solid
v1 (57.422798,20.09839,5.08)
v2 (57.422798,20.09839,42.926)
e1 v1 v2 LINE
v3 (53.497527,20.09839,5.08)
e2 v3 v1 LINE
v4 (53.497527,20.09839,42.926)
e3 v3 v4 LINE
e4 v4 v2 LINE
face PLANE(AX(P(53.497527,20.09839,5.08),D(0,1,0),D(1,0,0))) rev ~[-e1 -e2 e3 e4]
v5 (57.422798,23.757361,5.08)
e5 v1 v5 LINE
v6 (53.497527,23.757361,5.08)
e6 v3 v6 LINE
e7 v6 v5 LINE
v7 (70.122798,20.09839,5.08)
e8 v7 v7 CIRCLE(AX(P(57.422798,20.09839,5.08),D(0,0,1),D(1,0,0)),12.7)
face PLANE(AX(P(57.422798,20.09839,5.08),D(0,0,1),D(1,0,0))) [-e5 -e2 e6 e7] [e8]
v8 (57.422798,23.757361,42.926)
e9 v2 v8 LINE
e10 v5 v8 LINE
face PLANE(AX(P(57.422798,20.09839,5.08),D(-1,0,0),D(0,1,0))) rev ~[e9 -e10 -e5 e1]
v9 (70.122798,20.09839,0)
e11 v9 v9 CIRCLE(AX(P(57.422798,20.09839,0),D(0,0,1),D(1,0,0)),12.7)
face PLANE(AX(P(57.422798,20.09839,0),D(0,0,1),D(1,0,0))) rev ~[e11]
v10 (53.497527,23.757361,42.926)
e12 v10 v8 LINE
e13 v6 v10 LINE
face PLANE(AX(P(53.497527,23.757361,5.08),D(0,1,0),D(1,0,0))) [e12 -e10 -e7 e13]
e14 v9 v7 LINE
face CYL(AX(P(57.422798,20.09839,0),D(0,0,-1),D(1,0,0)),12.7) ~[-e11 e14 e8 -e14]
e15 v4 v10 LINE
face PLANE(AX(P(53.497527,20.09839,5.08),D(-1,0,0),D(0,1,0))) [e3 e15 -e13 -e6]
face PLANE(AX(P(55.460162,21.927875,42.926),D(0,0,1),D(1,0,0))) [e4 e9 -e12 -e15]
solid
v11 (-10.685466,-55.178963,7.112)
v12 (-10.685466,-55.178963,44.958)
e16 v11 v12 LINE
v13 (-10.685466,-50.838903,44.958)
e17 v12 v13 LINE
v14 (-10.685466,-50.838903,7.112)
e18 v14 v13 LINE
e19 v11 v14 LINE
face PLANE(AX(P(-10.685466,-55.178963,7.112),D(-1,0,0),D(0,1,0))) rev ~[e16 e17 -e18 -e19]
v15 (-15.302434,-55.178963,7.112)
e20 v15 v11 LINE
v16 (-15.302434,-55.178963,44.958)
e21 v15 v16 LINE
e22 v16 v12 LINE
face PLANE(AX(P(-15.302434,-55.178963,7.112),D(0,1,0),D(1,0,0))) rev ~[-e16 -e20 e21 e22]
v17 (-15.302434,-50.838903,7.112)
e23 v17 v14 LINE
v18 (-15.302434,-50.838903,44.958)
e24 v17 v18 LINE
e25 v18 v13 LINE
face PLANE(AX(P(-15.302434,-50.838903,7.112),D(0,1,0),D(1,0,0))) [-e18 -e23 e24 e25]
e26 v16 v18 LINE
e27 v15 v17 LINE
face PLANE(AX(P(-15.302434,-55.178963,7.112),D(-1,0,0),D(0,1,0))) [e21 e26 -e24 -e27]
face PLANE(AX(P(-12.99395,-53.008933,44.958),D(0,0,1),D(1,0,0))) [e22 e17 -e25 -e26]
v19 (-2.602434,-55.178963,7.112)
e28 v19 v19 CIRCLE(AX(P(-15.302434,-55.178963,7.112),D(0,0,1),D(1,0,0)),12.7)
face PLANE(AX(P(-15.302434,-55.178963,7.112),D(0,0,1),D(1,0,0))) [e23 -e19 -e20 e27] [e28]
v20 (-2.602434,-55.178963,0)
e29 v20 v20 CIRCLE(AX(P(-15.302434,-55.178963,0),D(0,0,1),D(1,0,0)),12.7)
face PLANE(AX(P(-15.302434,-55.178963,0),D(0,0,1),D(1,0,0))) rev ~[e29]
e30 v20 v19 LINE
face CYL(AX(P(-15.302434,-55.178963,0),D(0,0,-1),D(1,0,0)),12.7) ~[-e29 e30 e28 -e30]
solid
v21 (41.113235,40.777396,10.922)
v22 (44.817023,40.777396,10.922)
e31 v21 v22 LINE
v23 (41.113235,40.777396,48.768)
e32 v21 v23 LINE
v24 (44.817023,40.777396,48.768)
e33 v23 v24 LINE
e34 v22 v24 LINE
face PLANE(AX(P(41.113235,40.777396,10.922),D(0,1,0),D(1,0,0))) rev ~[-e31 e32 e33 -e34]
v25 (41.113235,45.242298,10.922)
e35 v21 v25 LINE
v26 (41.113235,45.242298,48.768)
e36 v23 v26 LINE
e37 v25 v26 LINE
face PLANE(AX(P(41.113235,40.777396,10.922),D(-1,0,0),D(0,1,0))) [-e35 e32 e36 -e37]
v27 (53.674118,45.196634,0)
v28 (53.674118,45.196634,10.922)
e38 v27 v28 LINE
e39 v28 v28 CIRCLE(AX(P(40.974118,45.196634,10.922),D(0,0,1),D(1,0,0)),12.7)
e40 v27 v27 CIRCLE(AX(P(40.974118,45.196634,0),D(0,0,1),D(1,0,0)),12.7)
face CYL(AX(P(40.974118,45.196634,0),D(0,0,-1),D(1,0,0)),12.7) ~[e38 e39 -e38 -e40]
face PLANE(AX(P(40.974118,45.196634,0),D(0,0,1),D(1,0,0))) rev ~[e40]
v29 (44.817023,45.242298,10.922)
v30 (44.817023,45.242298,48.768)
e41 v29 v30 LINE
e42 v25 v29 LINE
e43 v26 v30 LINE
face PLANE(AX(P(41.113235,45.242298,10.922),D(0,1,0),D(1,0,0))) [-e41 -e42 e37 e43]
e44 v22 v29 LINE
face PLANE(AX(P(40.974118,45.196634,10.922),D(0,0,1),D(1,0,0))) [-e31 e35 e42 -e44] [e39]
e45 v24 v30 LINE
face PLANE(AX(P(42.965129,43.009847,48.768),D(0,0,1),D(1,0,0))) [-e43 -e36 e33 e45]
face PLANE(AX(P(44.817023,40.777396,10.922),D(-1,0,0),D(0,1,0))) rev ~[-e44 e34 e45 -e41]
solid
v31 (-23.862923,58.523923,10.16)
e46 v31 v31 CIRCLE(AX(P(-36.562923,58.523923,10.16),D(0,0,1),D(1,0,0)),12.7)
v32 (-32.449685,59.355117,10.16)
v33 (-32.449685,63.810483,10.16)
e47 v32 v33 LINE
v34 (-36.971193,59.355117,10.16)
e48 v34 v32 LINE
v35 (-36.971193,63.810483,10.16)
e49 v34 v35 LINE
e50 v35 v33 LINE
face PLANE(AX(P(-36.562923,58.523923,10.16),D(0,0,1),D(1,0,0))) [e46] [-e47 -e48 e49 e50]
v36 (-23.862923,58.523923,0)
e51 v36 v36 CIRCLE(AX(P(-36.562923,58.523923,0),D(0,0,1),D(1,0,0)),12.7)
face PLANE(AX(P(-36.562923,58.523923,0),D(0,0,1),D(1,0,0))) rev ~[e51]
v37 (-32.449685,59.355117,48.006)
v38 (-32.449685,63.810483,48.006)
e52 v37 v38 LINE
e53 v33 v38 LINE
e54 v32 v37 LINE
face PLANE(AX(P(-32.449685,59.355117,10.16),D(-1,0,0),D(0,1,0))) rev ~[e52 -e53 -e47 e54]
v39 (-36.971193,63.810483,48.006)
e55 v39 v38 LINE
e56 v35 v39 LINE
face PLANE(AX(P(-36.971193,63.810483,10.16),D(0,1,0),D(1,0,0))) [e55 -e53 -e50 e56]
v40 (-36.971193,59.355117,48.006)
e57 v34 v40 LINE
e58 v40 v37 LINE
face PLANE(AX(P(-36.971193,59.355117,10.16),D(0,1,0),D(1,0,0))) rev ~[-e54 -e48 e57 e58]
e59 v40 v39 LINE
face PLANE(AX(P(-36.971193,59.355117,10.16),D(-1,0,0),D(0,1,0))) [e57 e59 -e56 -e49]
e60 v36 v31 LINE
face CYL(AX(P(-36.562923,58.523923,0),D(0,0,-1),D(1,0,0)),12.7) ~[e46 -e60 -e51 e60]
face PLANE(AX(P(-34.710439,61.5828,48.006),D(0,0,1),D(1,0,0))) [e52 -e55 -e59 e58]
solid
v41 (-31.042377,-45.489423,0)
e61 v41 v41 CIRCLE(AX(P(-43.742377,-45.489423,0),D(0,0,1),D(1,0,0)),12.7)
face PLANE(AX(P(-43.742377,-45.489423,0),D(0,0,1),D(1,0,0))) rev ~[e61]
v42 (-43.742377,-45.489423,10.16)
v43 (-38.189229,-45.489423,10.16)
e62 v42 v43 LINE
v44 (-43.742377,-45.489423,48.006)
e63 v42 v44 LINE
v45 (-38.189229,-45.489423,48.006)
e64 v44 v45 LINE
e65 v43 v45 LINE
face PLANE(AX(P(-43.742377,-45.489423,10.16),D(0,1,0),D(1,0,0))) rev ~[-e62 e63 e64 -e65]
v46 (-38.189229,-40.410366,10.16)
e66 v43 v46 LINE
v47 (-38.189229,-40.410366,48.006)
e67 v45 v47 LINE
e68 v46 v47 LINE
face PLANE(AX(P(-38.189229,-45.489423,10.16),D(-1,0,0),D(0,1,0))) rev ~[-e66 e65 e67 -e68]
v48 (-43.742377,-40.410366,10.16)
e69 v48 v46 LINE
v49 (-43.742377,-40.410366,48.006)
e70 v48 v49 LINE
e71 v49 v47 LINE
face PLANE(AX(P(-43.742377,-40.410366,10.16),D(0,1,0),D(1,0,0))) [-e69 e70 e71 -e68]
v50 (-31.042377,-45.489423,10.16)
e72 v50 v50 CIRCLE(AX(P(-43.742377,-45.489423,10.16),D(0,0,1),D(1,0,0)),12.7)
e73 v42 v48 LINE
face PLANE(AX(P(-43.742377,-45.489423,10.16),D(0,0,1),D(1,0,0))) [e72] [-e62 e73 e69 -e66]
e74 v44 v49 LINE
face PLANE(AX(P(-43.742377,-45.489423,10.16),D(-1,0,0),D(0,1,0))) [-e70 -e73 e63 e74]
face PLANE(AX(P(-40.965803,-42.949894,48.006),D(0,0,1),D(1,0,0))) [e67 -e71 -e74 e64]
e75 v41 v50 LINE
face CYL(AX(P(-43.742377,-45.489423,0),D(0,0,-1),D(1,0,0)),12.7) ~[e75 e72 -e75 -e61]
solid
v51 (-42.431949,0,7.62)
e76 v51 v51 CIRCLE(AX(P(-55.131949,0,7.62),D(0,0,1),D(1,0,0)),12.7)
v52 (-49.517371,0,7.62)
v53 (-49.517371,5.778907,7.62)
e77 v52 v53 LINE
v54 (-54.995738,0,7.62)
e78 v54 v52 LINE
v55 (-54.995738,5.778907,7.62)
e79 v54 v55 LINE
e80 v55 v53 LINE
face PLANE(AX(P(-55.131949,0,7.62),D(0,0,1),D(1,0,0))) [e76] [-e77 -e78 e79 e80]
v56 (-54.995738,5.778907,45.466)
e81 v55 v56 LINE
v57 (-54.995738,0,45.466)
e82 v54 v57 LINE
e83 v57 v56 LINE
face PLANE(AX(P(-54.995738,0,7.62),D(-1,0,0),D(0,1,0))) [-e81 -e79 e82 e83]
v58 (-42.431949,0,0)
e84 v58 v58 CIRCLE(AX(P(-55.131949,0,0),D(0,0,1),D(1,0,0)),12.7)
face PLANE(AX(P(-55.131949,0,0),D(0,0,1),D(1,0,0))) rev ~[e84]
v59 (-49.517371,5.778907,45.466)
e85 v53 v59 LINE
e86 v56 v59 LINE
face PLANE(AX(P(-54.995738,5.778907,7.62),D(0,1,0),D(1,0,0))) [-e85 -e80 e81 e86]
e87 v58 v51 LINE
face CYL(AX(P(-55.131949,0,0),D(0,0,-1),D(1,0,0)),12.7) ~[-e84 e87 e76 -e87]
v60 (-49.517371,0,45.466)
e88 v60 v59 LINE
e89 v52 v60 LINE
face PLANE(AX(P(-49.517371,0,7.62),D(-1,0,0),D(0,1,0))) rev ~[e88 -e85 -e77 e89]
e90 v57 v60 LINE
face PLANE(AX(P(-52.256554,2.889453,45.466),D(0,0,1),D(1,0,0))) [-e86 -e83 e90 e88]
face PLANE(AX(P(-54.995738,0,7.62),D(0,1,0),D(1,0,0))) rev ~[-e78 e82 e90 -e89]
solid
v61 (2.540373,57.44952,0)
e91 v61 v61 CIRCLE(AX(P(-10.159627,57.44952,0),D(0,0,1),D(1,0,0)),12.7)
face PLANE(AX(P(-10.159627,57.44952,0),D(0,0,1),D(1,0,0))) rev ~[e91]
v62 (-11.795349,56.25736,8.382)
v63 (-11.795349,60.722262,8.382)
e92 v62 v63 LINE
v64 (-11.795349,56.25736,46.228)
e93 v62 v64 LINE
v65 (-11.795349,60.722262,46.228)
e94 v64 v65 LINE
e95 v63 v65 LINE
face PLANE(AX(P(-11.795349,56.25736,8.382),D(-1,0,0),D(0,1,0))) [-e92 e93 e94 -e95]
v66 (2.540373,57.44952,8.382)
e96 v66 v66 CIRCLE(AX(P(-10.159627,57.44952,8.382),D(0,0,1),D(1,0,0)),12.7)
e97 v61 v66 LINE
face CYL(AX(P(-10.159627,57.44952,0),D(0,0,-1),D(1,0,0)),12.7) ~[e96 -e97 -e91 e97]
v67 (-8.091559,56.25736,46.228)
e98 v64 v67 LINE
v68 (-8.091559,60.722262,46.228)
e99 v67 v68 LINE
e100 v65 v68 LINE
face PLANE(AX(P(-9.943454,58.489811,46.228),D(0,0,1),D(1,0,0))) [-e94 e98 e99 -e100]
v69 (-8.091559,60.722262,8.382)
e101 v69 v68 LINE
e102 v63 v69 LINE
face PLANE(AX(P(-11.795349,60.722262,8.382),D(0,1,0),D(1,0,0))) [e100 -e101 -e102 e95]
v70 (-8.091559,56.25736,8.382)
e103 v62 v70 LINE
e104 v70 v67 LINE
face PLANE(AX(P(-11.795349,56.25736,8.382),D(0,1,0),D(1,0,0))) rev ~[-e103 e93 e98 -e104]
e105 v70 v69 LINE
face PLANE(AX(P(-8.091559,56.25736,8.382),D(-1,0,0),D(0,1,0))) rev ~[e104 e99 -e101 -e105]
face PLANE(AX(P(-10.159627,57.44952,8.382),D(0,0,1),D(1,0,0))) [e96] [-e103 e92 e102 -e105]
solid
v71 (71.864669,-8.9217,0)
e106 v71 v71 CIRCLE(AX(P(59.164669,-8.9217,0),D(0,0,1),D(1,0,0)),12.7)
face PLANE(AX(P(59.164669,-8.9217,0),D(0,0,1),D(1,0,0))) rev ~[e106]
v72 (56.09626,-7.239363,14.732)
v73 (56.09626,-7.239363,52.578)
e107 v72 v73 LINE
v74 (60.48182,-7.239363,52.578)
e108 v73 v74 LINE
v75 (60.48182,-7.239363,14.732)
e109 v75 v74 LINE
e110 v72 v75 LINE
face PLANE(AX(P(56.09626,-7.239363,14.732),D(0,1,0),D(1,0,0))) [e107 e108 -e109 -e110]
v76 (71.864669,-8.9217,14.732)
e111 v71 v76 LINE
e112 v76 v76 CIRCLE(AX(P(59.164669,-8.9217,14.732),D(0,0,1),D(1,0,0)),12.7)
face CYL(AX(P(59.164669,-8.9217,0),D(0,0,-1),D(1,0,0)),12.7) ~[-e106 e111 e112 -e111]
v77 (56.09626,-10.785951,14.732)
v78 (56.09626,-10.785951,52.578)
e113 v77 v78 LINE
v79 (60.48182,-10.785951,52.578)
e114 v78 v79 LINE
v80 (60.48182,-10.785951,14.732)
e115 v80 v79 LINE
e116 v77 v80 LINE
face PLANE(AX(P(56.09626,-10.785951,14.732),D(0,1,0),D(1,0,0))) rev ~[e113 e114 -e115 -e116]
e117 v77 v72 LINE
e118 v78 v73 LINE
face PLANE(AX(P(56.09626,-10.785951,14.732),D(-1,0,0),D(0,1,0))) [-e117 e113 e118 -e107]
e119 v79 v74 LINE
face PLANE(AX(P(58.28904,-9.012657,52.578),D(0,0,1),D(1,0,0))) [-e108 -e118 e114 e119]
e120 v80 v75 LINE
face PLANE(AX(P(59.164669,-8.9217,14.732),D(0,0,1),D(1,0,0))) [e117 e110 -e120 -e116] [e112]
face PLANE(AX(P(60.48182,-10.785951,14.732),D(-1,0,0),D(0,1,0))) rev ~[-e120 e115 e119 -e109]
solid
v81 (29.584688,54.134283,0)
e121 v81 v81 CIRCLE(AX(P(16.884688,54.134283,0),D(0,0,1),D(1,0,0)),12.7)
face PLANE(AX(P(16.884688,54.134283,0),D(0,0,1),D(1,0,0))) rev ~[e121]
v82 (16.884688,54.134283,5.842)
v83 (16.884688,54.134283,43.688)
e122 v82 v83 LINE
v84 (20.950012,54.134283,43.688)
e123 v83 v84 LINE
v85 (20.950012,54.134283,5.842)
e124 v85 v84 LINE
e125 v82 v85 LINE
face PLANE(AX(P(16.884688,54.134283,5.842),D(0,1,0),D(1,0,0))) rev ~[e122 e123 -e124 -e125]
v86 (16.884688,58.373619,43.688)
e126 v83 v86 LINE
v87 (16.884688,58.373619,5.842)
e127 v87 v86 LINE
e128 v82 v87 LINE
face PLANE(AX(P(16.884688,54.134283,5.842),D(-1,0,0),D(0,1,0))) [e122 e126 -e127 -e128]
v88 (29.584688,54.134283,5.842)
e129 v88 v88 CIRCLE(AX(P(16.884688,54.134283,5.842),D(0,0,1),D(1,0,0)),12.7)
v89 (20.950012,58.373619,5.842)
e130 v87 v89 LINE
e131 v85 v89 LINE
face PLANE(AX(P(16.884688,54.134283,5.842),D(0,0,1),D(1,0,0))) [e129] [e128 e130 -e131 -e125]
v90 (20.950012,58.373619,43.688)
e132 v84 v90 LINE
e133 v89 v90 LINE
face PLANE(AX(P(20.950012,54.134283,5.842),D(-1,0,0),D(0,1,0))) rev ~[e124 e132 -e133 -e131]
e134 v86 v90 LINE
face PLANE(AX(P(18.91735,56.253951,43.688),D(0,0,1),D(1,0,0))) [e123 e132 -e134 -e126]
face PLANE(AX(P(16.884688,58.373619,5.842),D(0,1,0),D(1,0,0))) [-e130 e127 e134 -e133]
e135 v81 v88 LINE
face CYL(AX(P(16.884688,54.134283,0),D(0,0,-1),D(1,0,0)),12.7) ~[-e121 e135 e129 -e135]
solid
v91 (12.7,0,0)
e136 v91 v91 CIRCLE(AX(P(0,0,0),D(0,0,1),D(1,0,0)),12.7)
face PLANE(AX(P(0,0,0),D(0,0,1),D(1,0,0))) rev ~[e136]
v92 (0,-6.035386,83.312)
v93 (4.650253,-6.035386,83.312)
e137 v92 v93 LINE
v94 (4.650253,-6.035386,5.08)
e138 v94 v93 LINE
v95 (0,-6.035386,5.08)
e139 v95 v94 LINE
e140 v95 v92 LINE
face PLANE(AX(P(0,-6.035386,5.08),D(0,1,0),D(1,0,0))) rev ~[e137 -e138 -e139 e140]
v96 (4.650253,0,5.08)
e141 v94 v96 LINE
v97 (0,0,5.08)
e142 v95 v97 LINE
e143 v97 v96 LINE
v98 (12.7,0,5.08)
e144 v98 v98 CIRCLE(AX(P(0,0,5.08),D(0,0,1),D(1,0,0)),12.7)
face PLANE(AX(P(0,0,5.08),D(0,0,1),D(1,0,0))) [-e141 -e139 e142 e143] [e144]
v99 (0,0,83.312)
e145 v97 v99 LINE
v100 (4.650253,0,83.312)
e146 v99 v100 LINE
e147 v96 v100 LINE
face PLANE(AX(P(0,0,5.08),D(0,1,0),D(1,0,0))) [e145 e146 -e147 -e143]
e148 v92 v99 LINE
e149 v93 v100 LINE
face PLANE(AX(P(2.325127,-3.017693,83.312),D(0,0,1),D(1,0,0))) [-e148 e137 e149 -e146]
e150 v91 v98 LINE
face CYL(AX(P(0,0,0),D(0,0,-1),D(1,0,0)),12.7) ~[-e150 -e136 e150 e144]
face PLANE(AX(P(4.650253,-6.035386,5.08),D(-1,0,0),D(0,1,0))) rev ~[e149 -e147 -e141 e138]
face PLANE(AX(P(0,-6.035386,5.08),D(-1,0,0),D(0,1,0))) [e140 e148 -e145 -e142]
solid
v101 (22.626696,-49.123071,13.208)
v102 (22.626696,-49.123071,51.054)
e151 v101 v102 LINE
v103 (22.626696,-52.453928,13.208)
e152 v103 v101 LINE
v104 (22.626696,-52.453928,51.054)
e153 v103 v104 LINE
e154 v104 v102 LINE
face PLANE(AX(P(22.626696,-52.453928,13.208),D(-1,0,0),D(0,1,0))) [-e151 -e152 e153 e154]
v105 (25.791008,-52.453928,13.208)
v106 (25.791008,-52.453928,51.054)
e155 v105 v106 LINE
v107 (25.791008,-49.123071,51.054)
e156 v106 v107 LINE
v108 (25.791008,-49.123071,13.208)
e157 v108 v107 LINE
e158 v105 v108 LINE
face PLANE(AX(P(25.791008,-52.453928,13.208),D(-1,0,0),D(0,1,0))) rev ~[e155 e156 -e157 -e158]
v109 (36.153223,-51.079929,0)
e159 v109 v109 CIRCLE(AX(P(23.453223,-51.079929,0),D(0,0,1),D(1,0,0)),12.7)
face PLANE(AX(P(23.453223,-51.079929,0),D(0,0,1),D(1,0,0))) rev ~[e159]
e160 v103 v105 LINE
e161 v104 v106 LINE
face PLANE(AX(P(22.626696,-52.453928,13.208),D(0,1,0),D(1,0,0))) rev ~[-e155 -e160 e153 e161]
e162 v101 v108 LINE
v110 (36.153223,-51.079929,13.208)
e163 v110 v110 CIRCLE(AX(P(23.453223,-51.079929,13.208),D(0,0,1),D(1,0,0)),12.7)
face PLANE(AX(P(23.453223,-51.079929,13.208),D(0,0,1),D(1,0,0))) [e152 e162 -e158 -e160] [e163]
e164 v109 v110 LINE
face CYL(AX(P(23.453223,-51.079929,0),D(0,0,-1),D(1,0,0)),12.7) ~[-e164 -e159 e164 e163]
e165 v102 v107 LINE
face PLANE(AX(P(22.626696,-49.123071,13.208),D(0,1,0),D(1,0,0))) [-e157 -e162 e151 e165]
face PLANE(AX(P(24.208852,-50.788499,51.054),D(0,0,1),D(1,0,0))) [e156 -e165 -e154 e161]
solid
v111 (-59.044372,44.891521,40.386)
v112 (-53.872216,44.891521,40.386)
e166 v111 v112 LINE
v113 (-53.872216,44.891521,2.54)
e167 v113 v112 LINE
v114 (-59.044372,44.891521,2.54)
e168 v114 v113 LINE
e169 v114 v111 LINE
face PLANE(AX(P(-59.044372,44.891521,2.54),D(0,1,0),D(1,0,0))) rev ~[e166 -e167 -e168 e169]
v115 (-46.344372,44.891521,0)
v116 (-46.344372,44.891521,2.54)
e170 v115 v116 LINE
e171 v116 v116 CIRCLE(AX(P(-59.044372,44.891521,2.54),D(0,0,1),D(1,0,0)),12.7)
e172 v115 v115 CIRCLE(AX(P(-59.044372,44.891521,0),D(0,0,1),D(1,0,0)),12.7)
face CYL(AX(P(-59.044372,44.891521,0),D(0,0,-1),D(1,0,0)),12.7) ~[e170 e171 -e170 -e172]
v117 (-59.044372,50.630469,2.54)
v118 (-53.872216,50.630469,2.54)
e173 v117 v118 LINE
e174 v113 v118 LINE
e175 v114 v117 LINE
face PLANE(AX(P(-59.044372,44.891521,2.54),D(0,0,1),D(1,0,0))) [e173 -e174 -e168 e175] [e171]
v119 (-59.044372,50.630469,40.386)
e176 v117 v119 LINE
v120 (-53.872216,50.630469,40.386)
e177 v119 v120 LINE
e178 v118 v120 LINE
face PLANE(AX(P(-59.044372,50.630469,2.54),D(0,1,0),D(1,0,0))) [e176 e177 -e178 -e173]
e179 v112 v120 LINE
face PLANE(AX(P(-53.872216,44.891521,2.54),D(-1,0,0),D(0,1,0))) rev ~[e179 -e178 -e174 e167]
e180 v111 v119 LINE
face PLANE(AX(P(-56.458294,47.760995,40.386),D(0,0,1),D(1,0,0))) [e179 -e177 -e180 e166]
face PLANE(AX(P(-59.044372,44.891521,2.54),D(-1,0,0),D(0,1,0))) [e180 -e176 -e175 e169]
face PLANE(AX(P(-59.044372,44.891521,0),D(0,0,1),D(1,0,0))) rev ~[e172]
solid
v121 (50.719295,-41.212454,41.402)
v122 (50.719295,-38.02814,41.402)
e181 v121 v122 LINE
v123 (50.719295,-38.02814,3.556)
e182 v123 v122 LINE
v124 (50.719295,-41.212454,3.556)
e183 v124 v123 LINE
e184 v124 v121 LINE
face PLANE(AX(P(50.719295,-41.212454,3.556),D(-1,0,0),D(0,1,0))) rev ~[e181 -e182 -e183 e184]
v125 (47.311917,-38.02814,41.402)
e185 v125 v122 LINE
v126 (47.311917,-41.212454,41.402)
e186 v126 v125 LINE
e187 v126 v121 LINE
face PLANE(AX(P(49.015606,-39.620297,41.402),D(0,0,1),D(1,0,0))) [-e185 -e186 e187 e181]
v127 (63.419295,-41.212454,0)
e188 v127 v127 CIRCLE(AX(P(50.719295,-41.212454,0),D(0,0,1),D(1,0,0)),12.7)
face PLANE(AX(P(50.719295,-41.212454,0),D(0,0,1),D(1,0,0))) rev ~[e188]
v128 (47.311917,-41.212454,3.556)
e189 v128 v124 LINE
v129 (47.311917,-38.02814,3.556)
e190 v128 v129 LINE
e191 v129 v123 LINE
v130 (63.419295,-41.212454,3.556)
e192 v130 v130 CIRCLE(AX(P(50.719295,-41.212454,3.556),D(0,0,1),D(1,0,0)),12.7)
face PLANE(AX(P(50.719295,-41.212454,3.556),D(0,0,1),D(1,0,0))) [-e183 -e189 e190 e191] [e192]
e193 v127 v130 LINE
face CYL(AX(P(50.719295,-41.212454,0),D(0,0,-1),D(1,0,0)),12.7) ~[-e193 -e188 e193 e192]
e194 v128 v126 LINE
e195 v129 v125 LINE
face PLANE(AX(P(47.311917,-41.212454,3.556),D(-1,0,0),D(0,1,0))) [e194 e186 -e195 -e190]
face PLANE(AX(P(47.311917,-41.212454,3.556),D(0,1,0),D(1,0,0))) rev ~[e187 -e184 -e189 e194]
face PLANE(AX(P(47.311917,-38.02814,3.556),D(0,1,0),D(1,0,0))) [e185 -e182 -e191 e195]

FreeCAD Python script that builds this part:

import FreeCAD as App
import Part
import Sketcher
from FreeCAD import Vector
Q = App.Units.Quantity


def add_polygon(sketch, points):
    """Adds a closed chain of lines whose ends are joined by coincident constraints."""
    first, n = sketch.GeometryCount, len(points)
    for a, b in zip(points, points[1:] + points[:1]):
        sketch.addGeometry(Part.LineSegment(App.Vector(*a, 0), App.Vector(*b, 0)), False)
    for i in range(n):
        sketch.addConstraint(Sketcher.Constraint("Coincident", first + i, 2, first + (i + 1) % n, 1))

doc = App.newDocument("Part")
params = doc.addObject("Spreadsheet::Sheet", "Params")
for row, (alias, value) in enumerate([
    ("sketch1_diameter", "1 in"),
    ("pad1_length", "0.2 in"),
    ("pad2_length", "3.08 in"),
    ("sketch3_diameter", "1 in"),
    ("pad3_length", "0.3 in"),
    ("pad4_length", "1.49 in"),
    ("sketch5_diameter", "1 in"),
    ("pad5_length", "0.4 in"),
    ("pad6_length", "1.49 in"),
    ("sketch7_diameter", "1 in"),
    ("pad7_length", "0.1 in"),
    ("pad8_length", "1.49 in"),
    ("sketch9_diameter", "1 in"),
    ("pad9_length", "0.4 in"),
    ("pad10_length", "1.49 in"),
    ("sketch11_diameter", "1 in"),
    ("pad11_length", "0.33 in"),
    ("pad12_length", "1.49 in"),
    ("sketch13_diameter", "1 in"),
    ("pad13_length", "0.23 in"),
    ("pad14_length", "1.49 in"),
    ("sketch15_diameter", "1 in"),
    ("pad15_length", "0.43 in"),
    ("pad16_length", "1.49 in"),
    ("sketch17_diameter", "1 in"),
    ("pad17_length", "0.2 in"),
    ("pad18_length", "1.49 in"),
    ("sketch19_diameter", "1 in"),
    ("pad19_length", "0.58 in"),
    ("pad20_length", "1.49 in"),
    ("sketch21_diameter", "1 in"),
    ("pad21_length", "0.14 in"),
    ("pad22_length", "1.49 in"),
    ("sketch23_diameter", "1 in"),
    ("pad23_length", "0.52 in"),
    ("pad24_length", "1.49 in"),
    ("sketch25_diameter", "1 in"),
    ("pad25_length", "0.28 in"),
    ("pad26_length", "1.49 in"),
], start=1):
    params.set(f"A{row}", alias)
    params.set(f"B{row}", "=" + value)
    params.setAlias(f"B{row}", alias)

body = doc.addObject("PartDesign::Body", "Body")

sketch1 = body.newObject("Sketcher::SketchObject", "Sketch")
sketch1.AttachmentSupport = (doc.getObject("XY_Plane"), [""])
sketch1.MapMode = "FlatFace"
sketch1.addGeometry(Part.Circle(Vector(0, 0, 0), Vector(0, 0, 1), 13), False)
sketch1.addConstraint(Sketcher.Constraint("Coincident", 0, 3, -1, 1))
sketch1.addConstraint(Sketcher.Constraint("Diameter", 0, Q("1 in")))
sketch1.setExpression("Constraints[1]", "Params.sketch1_diameter")
pad1 = body.newObject("PartDesign::Pad", "Pad")
pad1.Profile = sketch1
pad1.setExpression("Length", "Params.pad1_length")

sketch2 = body.newObject("Sketcher::SketchObject", "Sketch001")
sketch2.AttachmentSupport = (doc.getObject("XY_Plane"), [""])
sketch2.MapMode = "FlatFace"
sketch2.AttachmentOffset = App.Placement(Vector(0, 0, 0.2 * 25.4), App.Rotation())
add_polygon(sketch2, [(0, 0), (0, -6), (4.7, -6), (4.7, 0)])
sketch2.addConstraint(Sketcher.Constraint("Vertical", 0))
sketch2.addConstraint(Sketcher.Constraint("Horizontal", 1))
sketch2.addConstraint(Sketcher.Constraint("Vertical", 2))
sketch2.addConstraint(Sketcher.Constraint("Horizontal", 3))
sketch2.addConstraint(Sketcher.Constraint("Coincident", 3, 2, -1, 1))
sketch2.addConstraint(Sketcher.Constraint("DistanceX", 1, 1, 1, 2, Q("4.650253 mm")))
sketch2.addConstraint(Sketcher.Constraint("DistanceY", 0, 2, 0, 1, Q("6.035386 mm")))
pad2 = body.newObject("PartDesign::Pad", "Pad001")
pad2.Profile = sketch2
pad2.setExpression("Length", "Params.pad2_length")
body2 = doc.addObject("PartDesign::Body", "Body001")

sketch3 = body2.newObject("Sketcher::SketchObject", "Sketch002")
sketch3.AttachmentSupport = (doc.getObject("XY_Plane001"), [""])
sketch3.MapMode = "FlatFace"
sketch3.addGeometry(Part.Circle(Vector(-55, 0, 0), Vector(0, 0, 1), 13), False)
sketch3.addConstraint(Sketcher.Constraint("PointOnObject", 0, 3, -1))
sketch3.addConstraint(Sketcher.Constraint("Diameter", 0, Q("1 in")))
sketch3.addConstraint(Sketcher.Constraint("DistanceX", 0, 3, -1, 1, Q("55.131949 mm")))
sketch3.setExpression("Constraints[1]", "Params.sketch3_diameter")
pad3 = body2.newObject("PartDesign::Pad", "Pad002")
pad3.Profile = sketch3
pad3.setExpression("Length", "Params.pad3_length")

sketch4 = body2.newObject("Sketcher::SketchObject", "Sketch003")
sketch4.AttachmentSupport = (doc.getObject("XY_Plane001"), [""])
sketch4.MapMode = "FlatFace"
sketch4.AttachmentOffset = App.Placement(Vector(0, 0, 0.3 * 25.4), App.Rotation())
add_polygon(sketch4, [(-55, 6), (-55, 0), (-50, 0), (-50, 6)])
sketch4.addConstraint(Sketcher.Constraint("Vertical", 0))
sketch4.addConstraint(Sketcher.Constraint("Horizontal", 1))
sketch4.addConstraint(Sketcher.Constraint("Vertical", 2))
sketch4.addConstraint(Sketcher.Constraint("Horizontal", 3))
sketch4.addConstraint(Sketcher.Constraint("PointOnObject", 0, 2, -1))
sketch4.addConstraint(Sketcher.Constraint("DistanceX", 1, 1, 1, 2, Q("5.478367 mm")))
sketch4.addConstraint(Sketcher.Constraint("DistanceY", 0, 2, 0, 1, Q("5.778907 mm")))
sketch4.addConstraint(Sketcher.Constraint("DistanceX", 1, 2, -1, 1, Q("49.517371 mm")))
pad4 = body2.newObject("PartDesign::Pad", "Pad003")
pad4.Profile = sketch4
pad4.setExpression("Length", "Params.pad4_length")
body3 = doc.addObject("PartDesign::Body", "Body002")

sketch5 = body3.newObject("Sketcher::SketchObject", "Sketch004")
sketch5.AttachmentSupport = (doc.getObject("XY_Plane002"), [""])
sketch5.MapMode = "FlatFace"
sketch5.addGeometry(Part.Circle(Vector(-44, -45, 0), Vector(0, 0, 1), 13), False)
sketch5.addConstraint(Sketcher.Constraint("Diameter", 0, Q("1 in")))
sketch5.addConstraint(Sketcher.Constraint("DistanceX", 0, 3, -1, 1, Q("43.742377 mm")))
sketch5.addConstraint(Sketcher.Constraint("DistanceY", 0, 3, -1, 1, Q("45.489423 mm")))
sketch5.setExpression("Constraints[0]", "Params.sketch5_diameter")
pad5 = body3.newObject("PartDesign::Pad", "Pad004")
pad5.Profile = sketch5
pad5.setExpression("Length", "Params.pad5_length")

sketch6 = body3.newObject("Sketcher::SketchObject", "Sketch005")
sketch6.AttachmentSupport = (doc.getObject("XY_Plane002"), [""])
sketch6.MapMode = "FlatFace"
sketch6.AttachmentOffset = App.Placement(Vector(0, 0, 0.4 * 25.4), App.Rotation())
add_polygon(sketch6, [(-44, -40), (-44, -45), (-38, -45), (-38, -40)])
sketch6.addConstraint(Sketcher.Constraint("Vertical", 0))
sketch6.addConstraint(Sketcher.Constraint("Horizontal", 1))
sketch6.addConstraint(Sketcher.Constraint("Vertical", 2))
sketch6.addConstraint(Sketcher.Constraint("Horizontal", 3))
sketch6.addConstraint(Sketcher.Constraint("DistanceX", 1, 1, 1, 2, Q("5.553149 mm")))
sketch6.addConstraint(Sketcher.Constraint("DistanceY", 0, 2, 0, 1, Q("5.079057 mm")))
sketch6.addConstraint(Sketcher.Constraint("DistanceX", 1, 2, -1, 1, Q("38.189229 mm")))
sketch6.addConstraint(Sketcher.Constraint("DistanceY", 0, 2, -1, 1, Q("45.489423 mm")))
pad6 = body3.newObject("PartDesign::Pad", "Pad005")
pad6.Profile = sketch6
pad6.setExpression("Length", "Params.pad6_length")
body4 = doc.addObject("PartDesign::Body", "Body003")

sketch7 = body4.newObject("Sketcher::SketchObject", "Sketch006")
sketch7.AttachmentSupport = (doc.getObject("XY_Plane003"), [""])
sketch7.MapMode = "FlatFace"
sketch7.addGeometry(Part.Circle(Vector(-59, 45, 0), Vector(0, 0, 1), 13), False)
sketch7.addConstraint(Sketcher.Constraint("Diameter", 0, Q("1 in")))
sketch7.addConstraint(Sketcher.Constraint("DistanceY", -1, 1, 0, 3, Q("44.891521 mm")))
sketch7.addConstraint(Sketcher.Constraint("DistanceX", 0, 3, -1, 1, Q("59.044372 mm")))
sketch7.setExpression("Constraints[0]", "Params.sketch7_diameter")
pad7 = body4.newObject("PartDesign::Pad", "Pad006")
pad7.Profile = sketch7
pad7.setExpression("Length", "Params.pad7_length")

sketch8 = body4.newObject("Sketcher::SketchObject", "Sketch007")
sketch8.AttachmentSupport = (doc.getObject("XY_Plane003"), [""])
sketch8.MapMode = "FlatFace"
sketch8.AttachmentOffset = App.Placement(Vector(0, 0, 0.1 * 25.4), App.Rotation())
add_polygon(sketch8, [(-59, 51), (-59, 45), (-54, 45), (-54, 51)])
sketch8.addConstraint(Sketcher.Constraint("Vertical", 0))
sketch8.addConstraint(Sketcher.Constraint("Horizontal", 1))
sketch8.addConstraint(Sketcher.Constraint("Vertical", 2))
sketch8.addConstraint(Sketcher.Constraint("Horizontal", 3))
sketch8.addConstraint(Sketcher.Constraint("DistanceX", 1, 1, 1, 2, Q("5.172156 mm")))
sketch8.addConstraint(Sketcher.Constraint("DistanceY", 0, 2, 0, 1, Q("5.738948 mm")))
sketch8.addConstraint(Sketcher.Constraint("DistanceY", -1, 1, 0, 2, Q("44.891521 mm")))
sketch8.addConstraint(Sketcher.Constraint("DistanceX", 0, 2, -1, 1, Q("59.044372 mm")))
pad8 = body4.newObject("PartDesign::Pad", "Pad007")
pad8.Profile = sketch8
pad8.setExpression("Length", "Params.pad8_length")
body5 = doc.addObject("PartDesign::Body", "Body004")

sketch9 = body5.newObject("Sketcher::SketchObject", "Sketch008")
sketch9.AttachmentSupport = (doc.getObject("XY_Plane004"), [""])
sketch9.MapMode = "FlatFace"
sketch9.addGeometry(Part.Circle(Vector(-37, 59, 0), Vector(0, 0, 1), 13), False)
sketch9.addConstraint(Sketcher.Constraint("Diameter", 0, Q("1 in")))
sketch9.addConstraint(Sketcher.Constraint("DistanceX", 0, 3, -1, 1, Q("36.562923 mm")))
sketch9.addConstraint(Sketcher.Constraint("DistanceY", -1, 1, 0, 3, Q("58.523923 mm")))
sketch9.setExpression("Constraints[0]", "Params.sketch9_diameter")
pad9 = body5.newObject("PartDesign::Pad", "Pad008")
pad9.Profile = sketch9
pad9.setExpression("Length", "Params.pad9_length")

sketch10 = body5.newObject("Sketcher::SketchObject", "Sketch009")
sketch10.AttachmentSupport = (doc.getObject("XY_Plane004"), [""])
sketch10.MapMode = "FlatFace"
sketch10.AttachmentOffset = App.Placement(Vector(0, 0, 0.4 * 25.4), App.Rotation())
add_polygon(sketch10, [(-37, 63.8), (-37, 59.4), (-32.4, 59.4), (-32.4, 63.8)])
sketch10.addConstraint(Sketcher.Constraint("Vertical", 0))
sketch10.addConstraint(Sketcher.Constraint("Horizontal", 1))
sketch10.addConstraint(Sketcher.Constraint("Vertical", 2))
sketch10.addConstraint(Sketcher.Constraint("Horizontal", 3))
sketch10.addConstraint(Sketcher.Constraint("DistanceX", 1, 1, 1, 2, Q("4.521508 mm")))
sketch10.addConstraint(Sketcher.Constraint("DistanceY", 0, 2, 0, 1, Q("4.455365 mm")))
sketch10.addConstraint(Sketcher.Constraint("DistanceX", 0, 2, -1, 1, Q("36.971193 mm")))
sketch10.addConstraint(Sketcher.Constraint("DistanceY", -1, 1, 0, 2, Q("59.355117 mm")))
pad10 = body5.newObject("PartDesign::Pad", "Pad009")
pad10.Profile = sketch10
pad10.setExpression("Length", "Params.pad10_length")
body6 = doc.addObject("PartDesign::Body", "Body005")

sketch11 = body6.newObject("Sketcher::SketchObject", "Sketch010")
sketch11.AttachmentSupport = (doc.getObject("XY_Plane005"), [""])
sketch11.MapMode = "FlatFace"
sketch11.addGeometry(Part.Circle(Vector(-10, 57, 0), Vector(0, 0, 1), 13), False)
sketch11.addConstraint(Sketcher.Constraint("Diameter", 0, Q("1 in")))
sketch11.addConstraint(Sketcher.Constraint("DistanceY", -1, 1, 0, 3, Q("57.44952 mm")))
sketch11.addConstraint(Sketcher.Constraint("DistanceX", 0, 3, -1, 1, Q("10.159627 mm")))
sketch11.setExpression("Constraints[0]", "Params.sketch11_diameter")
pad11 = body6.newObject("PartDesign::Pad", "Pad010")
pad11.Profile = sketch11
pad11.setExpression("Length", "Params.pad11_length")

sketch12 = body6.newObject("Sketcher::SketchObject", "Sketch011")
sketch12.AttachmentSupport = (doc.getObject("XY_Plane005"), [""])
sketch12.MapMode = "FlatFace"
sketch12.AttachmentOffset = App.Placement(Vector(0, 0, 0.33 * 25.4), App.Rotation())
add_polygon(sketch12, [(-11.8, 60.7), (-11.8, 56.3), (-8.1, 56.3), (-8.1, 60.7)])
sketch12.addConstraint(Sketcher.Constraint("Vertical", 0))
sketch12.addConstraint(Sketcher.Constraint("Horizontal", 1))
sketch12.addConstraint(Sketcher.Constraint("Vertical", 2))
sketch12.addConstraint(Sketcher.Constraint("Horizontal", 3))
sketch12.addConstraint(Sketcher.Constraint("DistanceY", 0, 2, 0, 1, Q("4.464902 mm")))
sketch12.addConstraint(Sketcher.Constraint("DistanceX", 1, 1, 1, 2, Q("3.703791 mm")))
sketch12.addConstraint(Sketcher.Constraint("DistanceX", 0, 2, -1, 1, Q("11.795349 mm")))
sketch12.addConstraint(Sketcher.Constraint("DistanceY", -1, 1, 0, 2, Q("56.25736 mm")))
pad12 = body6.newObject("PartDesign::Pad", "Pad011")
pad12.Profile = sketch12
pad12.setExpression("Length", "Params.pad12_length")
body7 = doc.addObject("PartDesign::Body", "Body006")

sketch13 = body7.newObject("Sketcher::SketchObject", "Sketch012")
sketch13.AttachmentSupport = (doc.getObject("XY_Plane006"), [""])
sketch13.MapMode = "FlatFace"
sketch13.addGeometry(Part.Circle(Vector(17, 54, 0), Vector(0, 0, 1), 13), False)
sketch13.addConstraint(Sketcher.Constraint("Diameter", 0, Q("1 in")))
sketch13.addConstraint(Sketcher.Constraint("DistanceX", -1, 1, 0, 3, Q("16.884688 mm")))
sketch13.addConstraint(Sketcher.Constraint("DistanceY", -1, 1, 0, 3, Q("54.134283 mm")))
sketch13.setExpression("Constraints[0]", "Params.sketch13_diameter")
pad13 = body7.newObject("PartDesign::Pad", "Pad012")
pad13.Profile = sketch13
pad13.setExpression("Length", "Params.pad13_length")

sketch14 = body7.newObject("Sketcher::SketchObject", "Sketch013")
sketch14.AttachmentSupport = (doc.getObject("XY_Plane006"), [""])
sketch14.MapMode = "FlatFace"
sketch14.AttachmentOffset = App.Placement(Vector(0, 0, 0.23 * 25.4), App.Rotation())
add_polygon(sketch14, [(16.9, 58.4), (16.9, 54.1), (21, 54.1), (21, 58.4)])
sketch14.addConstraint(Sketcher.Constraint("Vertical", 0))
sketch14.addConstraint(Sketcher.Constraint("Horizontal", 1))
sketch14.addConstraint(Sketcher.Constraint("Vertical", 2))
sketch14.addConstraint(Sketcher.Constraint("Horizontal", 3))
sketch14.addConstraint(Sketcher.Constraint("DistanceX", 1, 1, 1, 2, Q("4.065324 mm")))
sketch14.addConstraint(Sketcher.Constraint("DistanceY", 0, 2, 0, 1, Q("4.239336 mm")))
sketch14.addConstraint(Sketcher.Constraint("DistanceX", -1, 1, 0, 2, Q("16.884688 mm")))
sketch14.addConstraint(Sketcher.Constraint("DistanceY", -1, 1, 2, 2, Q("58.373619 mm")))
pad14 = body7.newObject("PartDesign::Pad", "Pad013")
pad14.Profile = sketch14
pad14.setExpression("Length", "Params.pad14_length")
body8 = doc.addObject("PartDesign::Body", "Body007")

sketch15 = body8.newObject("Sketcher::SketchObject", "Sketch014")
sketch15.AttachmentSupport = (doc.getObject("XY_Plane007"), [""])
sketch15.MapMode = "FlatFace"
sketch15.addGeometry(Part.Circle(Vector(41, 45, 0), Vector(0, 0, 1), 13), False)
sketch15.addConstraint(Sketcher.Constraint("Diameter", 0, Q("1 in")))
sketch15.addConstraint(Sketcher.Constraint("DistanceX", -1, 1, 0, 3, Q("40.974118 mm")))
sketch15.addConstraint(Sketcher.Constraint("DistanceY", -1, 1, 0, 3, Q("45.196634 mm")))
sketch15.setExpression("Constraints[0]", "Params.sketch15_diameter")
pad15 = body8.newObject("PartDesign::Pad", "Pad014")
pad15.Profile = sketch15
pad15.setExpression("Length", "Params.pad15_length")

sketch16 = body8.newObject("Sketcher::SketchObject", "Sketch015")
sketch16.AttachmentSupport = (doc.getObject("XY_Plane007"), [""])
sketch16.MapMode = "FlatFace"
sketch16.AttachmentOffset = App.Placement(Vector(0, 0, 0.43 * 25.4), App.Rotation())
add_polygon(sketch16, [(41.1, 45.2), (41.1, 40.8), (44.8, 40.8), (44.8, 45.2)])
sketch16.addConstraint(Sketcher.Constraint("Vertical", 0))
sketch16.addConstraint(Sketcher.Constraint("Horizontal", 1))
sketch16.addConstraint(Sketcher.Constraint("Vertical", 2))
sketch16.addConstraint(Sketcher.Constraint("Horizontal", 3))
sketch16.addConstraint(Sketcher.Constraint("DistanceY", 0, 2, 0, 1, Q("4.464902 mm")))
sketch16.addConstraint(Sketcher.Constraint("DistanceY", -1, 1, 2, 2, Q("45.242298 mm")))
sketch16.addConstraint(Sketcher.Constraint("DistanceX", 1, 1, 1, 2, Q("3.703788 mm")))
sketch16.addConstraint(Sketcher.Constraint("DistanceX", -1, 1, 0, 2, Q("41.113235 mm")))
pad16 = body8.newObject("PartDesign::Pad", "Pad015")
pad16.Profile = sketch16
pad16.setExpression("Length", "Params.pad16_length")
body9 = doc.addObject("PartDesign::Body", "Body008")

sketch17 = body9.newObject("Sketcher::SketchObject", "Sketch016")
sketch17.AttachmentSupport = (doc.getObject("XY_Plane008"), [""])
sketch17.MapMode = "FlatFace"
sketch17.addGeometry(Part.Circle(Vector(57, 20, 0), Vector(0, 0, 1), 13), False)
sketch17.addConstraint(Sketcher.Constraint("Diameter", 0, Q("1 in")))
sketch17.addConstraint(Sketcher.Constraint("DistanceX", -1, 1, 0, 3, Q("57.422798 mm")))
sketch17.addConstraint(Sketcher.Constraint("DistanceY", -1, 1, 0, 3, Q("20.09839 mm")))
sketch17.setExpression("Constraints[0]", "Params.sketch17_diameter")
pad17 = body9.newObject("PartDesign::Pad", "Pad016")
pad17.Profile = sketch17
pad17.setExpression("Length", "Params.pad17_length")

sketch18 = body9.newObject("Sketcher::SketchObject", "Sketch017")
sketch18.AttachmentSupport = (doc.getObject("XY_Plane008"), [""])
sketch18.MapMode = "FlatFace"
sketch18.AttachmentOffset = App.Placement(Vector(0, 0, 0.2 * 25.4), App.Rotation())
add_polygon(sketch18, [(53.5, 23.8), (53.5, 20.1), (57.4, 20.1), (57.4, 23.8)])
sketch18.addConstraint(Sketcher.Constraint("Vertical", 0))
sketch18.addConstraint(Sketcher.Constraint("Horizontal", 1))
sketch18.addConstraint(Sketcher.Constraint("Vertical", 2))
sketch18.addConstraint(Sketcher.Constraint("Horizontal", 3))
sketch18.addConstraint(Sketcher.Constraint("DistanceX", 1, 1, 1, 2, Q("3.925271 mm")))
sketch18.addConstraint(Sketcher.Constraint("DistanceY", 0, 2, 0, 1, Q("3.658971 mm")))
sketch18.addConstraint(Sketcher.Constraint("DistanceX", -1, 1, 1, 2, Q("57.422798 mm")))
sketch18.addConstraint(Sketcher.Constraint("DistanceY", -1, 1, 0, 2, Q("20.09839 mm")))
pad18 = body9.newObject("PartDesign::Pad", "Pad017")
pad18.Profile = sketch18
pad18.setExpression("Length", "Params.pad18_length")
body10 = doc.addObject("PartDesign::Body", "Body009")

sketch19 = body10.newObject("Sketcher::SketchObject", "Sketch018")
sketch19.AttachmentSupport = (doc.getObject("XY_Plane009"), [""])
sketch19.MapMode = "FlatFace"
sketch19.addGeometry(Part.Circle(Vector(59, -9, 0), Vector(0, 0, 1), 13), False)
sketch19.addConstraint(Sketcher.Constraint("Diameter", 0, Q("1 in")))
sketch19.addConstraint(Sketcher.Constraint("DistanceY", 0, 3, -1, 1, Q("8.9217 mm")))
sketch19.addConstraint(Sketcher.Constraint("DistanceX", -1, 1, 0, 3, Q("59.164669 mm")))
sketch19.setExpression("Constraints[0]", "Params.sketch19_diameter")
pad19 = body10.newObject("PartDesign::Pad", "Pad018")
pad19.Profile = sketch19
pad19.setExpression("Length", "Params.pad19_length")

sketch20 = body10.newObject("Sketcher::SketchObject", "Sketch019")
sketch20.AttachmentSupport = (doc.getObject("XY_Plane009"), [""])
sketch20.MapMode = "FlatFace"
sketch20.AttachmentOffset = App.Placement(Vector(0, 0, 0.58 * 25.4), App.Rotation())
add_polygon(sketch20, [(56.1, -7.2), (56.1, -10.8), (60.5, -10.8), (60.5, -7.2)])
sketch20.addConstraint(Sketcher.Constraint("Vertical", 0))
sketch20.addConstraint(Sketcher.Constraint("Horizontal", 1))
sketch20.addConstraint(Sketcher.Constraint("Vertical", 2))
sketch20.addConstraint(Sketcher.Constraint("Horizontal", 3))
sketch20.addConstraint(Sketcher.Constraint("DistanceX", 1, 1, 1, 2, Q("4.385561 mm")))
sketch20.addConstraint(Sketcher.Constraint("DistanceY", 0, 2, 0, 1, Q("3.546588 mm")))
sketch20.addConstraint(Sketcher.Constraint("DistanceX", -1, 1, 0, 2, Q("56.09626 mm")))
sketch20.addConstraint(Sketcher.Constraint("DistanceY", 0, 2, -1, 1, Q("10.785951 mm")))
pad20 = body10.newObject("PartDesign::Pad", "Pad019")
pad20.Profile = sketch20
pad20.setExpression("Length", "Params.pad20_length")
body11 = doc.addObject("PartDesign::Body", "Body010")

sketch21 = body11.newObject("Sketcher::SketchObject", "Sketch020")
sketch21.AttachmentSupport = (doc.getObject("XY_Plane010"), [""])
sketch21.MapMode = "FlatFace"
sketch21.addGeometry(Part.Circle(Vector(51, -41, 0), Vector(0, 0, 1), 13), False)
sketch21.addConstraint(Sketcher.Constraint("Diameter", 0, Q("1 in")))
sketch21.addConstraint(Sketcher.Constraint("DistanceX", -1, 1, 0, 3, Q("50.719295 mm")))
sketch21.addConstraint(Sketcher.Constraint("DistanceY", 0, 3, -1, 1, Q("41.212454 mm")))
sketch21.setExpression("Constraints[0]", "Params.sketch21_diameter")
pad21 = body11.newObject("PartDesign::Pad", "Pad020")
pad21.Profile = sketch21
pad21.setExpression("Length", "Params.pad21_length")

sketch22 = body11.newObject("Sketcher::SketchObject", "Sketch021")
sketch22.AttachmentSupport = (doc.getObject("XY_Plane010"), [""])
sketch22.MapMode = "FlatFace"
sketch22.AttachmentOffset = App.Placement(Vector(0, 0, 0.14 * 25.4), App.Rotation())
add_polygon(sketch22, [(47.3, -38), (47.3, -41.2), (50.7, -41.2), (50.7, -38)])
sketch22.addConstraint(Sketcher.Constraint("Vertical", 0))
sketch22.addConstraint(Sketcher.Constraint("Horizontal", 1))
sketch22.addConstraint(Sketcher.Constraint("Vertical", 2))
sketch22.addConstraint(Sketcher.Constraint("Horizontal", 3))
sketch22.addConstraint(Sketcher.Constraint("DistanceX", 1, 1, 1, 2, Q("3.407378 mm")))
sketch22.addConstraint(Sketcher.Constraint("DistanceY", 0, 2, 0, 1, Q("3.184315 mm")))
sketch22.addConstraint(Sketcher.Constraint("DistanceY", 2, 2, -1, 1, Q("38.02814 mm")))
sketch22.addConstraint(Sketcher.Constraint("DistanceX", -1, 1, 0, 2, Q("47.311917 mm")))
pad22 = body11.newObject("PartDesign::Pad", "Pad021")
pad22.Profile = sketch22
pad22.setExpression("Length", "Params.pad22_length")
body12 = doc.addObject("PartDesign::Body", "Body011")

sketch23 = body12.newObject("Sketcher::SketchObject", "Sketch022")
sketch23.AttachmentSupport = (doc.getObject("XY_Plane011"), [""])
sketch23.MapMode = "FlatFace"
sketch23.addGeometry(Part.Circle(Vector(23, -51, 0), Vector(0, 0, 1), 13), False)
sketch23.addConstraint(Sketcher.Constraint("Diameter", 0, Q("1 in")))
sketch23.addConstraint(Sketcher.Constraint("DistanceY", 0, 3, -1, 1, Q("51.079929 mm")))
sketch23.addConstraint(Sketcher.Constraint("DistanceX", -1, 1, 0, 3, Q("23.453223 mm")))
sketch23.setExpression("Constraints[0]", "Params.sketch23_diameter")
pad23 = body12.newObject("PartDesign::Pad", "Pad022")
pad23.Profile = sketch23
pad23.setExpression("Length", "Params.pad23_length")

sketch24 = body12.newObject("Sketcher::SketchObject", "Sketch023")
sketch24.AttachmentSupport = (doc.getObject("XY_Plane011"), [""])
sketch24.MapMode = "FlatFace"
sketch24.AttachmentOffset = App.Placement(Vector(0, 0, 0.52 * 25.4), App.Rotation())
add_polygon(sketch24, [(22.6, -49.1), (22.6, -52.5), (25.8, -52.5), (25.8, -49.1)])
sketch24.addConstraint(Sketcher.Constraint("Vertical", 0))
sketch24.addConstraint(Sketcher.Constraint("Horizontal", 1))
sketch24.addConstraint(Sketcher.Constraint("Vertical", 2))
sketch24.addConstraint(Sketcher.Constraint("Horizontal", 3))
sketch24.addConstraint(Sketcher.Constraint("DistanceX", 1, 1, 1, 2, Q("3.164312 mm")))
sketch24.addConstraint(Sketcher.Constraint("DistanceY", 0, 2, 0, 1, Q("3.330857 mm")))
sketch24.addConstraint(Sketcher.Constraint("DistanceX", -1, 1, 1, 2, Q("25.791008 mm")))
sketch24.addConstraint(Sketcher.Constraint("DistanceY", 2, 2, -1, 1, Q("49.123071 mm")))
pad24 = body12.newObject("PartDesign::Pad", "Pad023")
pad24.Profile = sketch24
pad24.setExpression("Length", "Params.pad24_length")
body13 = doc.addObject("PartDesign::Body", "Body012")

sketch25 = body13.newObject("Sketcher::SketchObject", "Sketch024")
sketch25.AttachmentSupport = (doc.getObject("XY_Plane012"), [""])
sketch25.MapMode = "FlatFace"
sketch25.addGeometry(Part.Circle(Vector(-15, -55, 0), Vector(0, 0, 1), 13), False)
sketch25.addConstraint(Sketcher.Constraint("Diameter", 0, Q("1 in")))
sketch25.addConstraint(Sketcher.Constraint("DistanceY", 0, 3, -1, 1, Q("2.1724001 in")))
sketch25.addConstraint(Sketcher.Constraint("DistanceX", 0, 3, -1, 1, Q("15.302434 mm")))
sketch25.setExpression("Constraints[0]", "Params.sketch25_diameter")
pad25 = body13.newObject("PartDesign::Pad", "Pad024")
pad25.Profile = sketch25
pad25.setExpression("Length", "Params.pad25_length")

sketch26 = body13.newObject("Sketcher::SketchObject", "Sketch025")
sketch26.AttachmentSupport = (doc.getObject("XY_Plane012"), [""])
sketch26.MapMode = "FlatFace"
sketch26.AttachmentOffset = App.Placement(Vector(0, 0, 0.28 * 25.4), App.Rotation())
add_polygon(sketch26, [(-15.3, -50.8), (-15.3, -55.2), (-10.7, -55.2), (-10.7, -50.8)])
sketch26.addConstraint(Sketcher.Constraint("Vertical", 0))
sketch26.addConstraint(Sketcher.Constraint("Horizontal", 1))
sketch26.addConstraint(Sketcher.Constraint("Vertical", 2))
sketch26.addConstraint(Sketcher.Constraint("Horizontal", 3))
sketch26.addConstraint(Sketcher.Constraint("DistanceY", 0, 2, -1, 1, Q("2.1724001 in")))
sketch26.addConstraint(Sketcher.Constraint("DistanceY", 0, 2, 0, 1, Q("4.34006 mm")))
sketch26.addConstraint(Sketcher.Constraint("DistanceX", 1, 1, 1, 2, Q("4.616967 mm")))
sketch26.addConstraint(Sketcher.Constraint("DistanceX", 0, 2, -1, 1, Q("15.302434 mm")))
pad26 = body13.newObject("PartDesign::Pad", "Pad025")
pad26.Profile = sketch26
pad26.setExpression("Length", "Params.pad26_length")

doc.recompute()
